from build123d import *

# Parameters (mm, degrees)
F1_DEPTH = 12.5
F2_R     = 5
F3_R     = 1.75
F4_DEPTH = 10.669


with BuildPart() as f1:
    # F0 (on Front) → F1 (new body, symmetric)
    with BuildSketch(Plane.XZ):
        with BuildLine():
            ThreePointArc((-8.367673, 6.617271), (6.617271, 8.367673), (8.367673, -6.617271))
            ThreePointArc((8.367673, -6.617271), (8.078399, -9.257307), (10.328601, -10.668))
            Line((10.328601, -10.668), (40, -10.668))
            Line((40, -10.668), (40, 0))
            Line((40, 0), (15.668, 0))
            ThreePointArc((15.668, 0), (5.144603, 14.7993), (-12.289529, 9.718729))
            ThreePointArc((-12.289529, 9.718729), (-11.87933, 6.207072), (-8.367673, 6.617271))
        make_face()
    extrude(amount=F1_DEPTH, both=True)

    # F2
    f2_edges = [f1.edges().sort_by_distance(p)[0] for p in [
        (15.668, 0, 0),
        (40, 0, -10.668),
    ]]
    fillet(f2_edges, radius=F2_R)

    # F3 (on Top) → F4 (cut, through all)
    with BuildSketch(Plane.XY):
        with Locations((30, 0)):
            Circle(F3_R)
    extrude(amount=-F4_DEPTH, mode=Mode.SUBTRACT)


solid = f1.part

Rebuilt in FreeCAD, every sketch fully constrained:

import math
import FreeCAD as App
import Part
import Sketcher

V = App.Vector


def edges_at(feature, points):
    """Names of the edges that pass closest to the given points."""
    edges = feature.Shape.Edges
    near = lambda p: min(range(len(edges)), key=lambda i: edges[i].distToShape(Part.Vertex(*p))[0])
    return sorted({f"Edge{near(p) + 1}" for p in points})

doc = App.newDocument("Part")
body = doc.addObject("PartDesign::Body", "Body")

# Sketch on XZ plane
sketch1 = body.newObject("Sketcher::SketchObject", "Sketch")
sketch1.AttachmentSupport = (doc.getObject("XZ_Plane"), [""])
sketch1.MapMode = "FlatFace"
sketch1.addGeometry(Part.ArcOfCircle(Part.Circle(V(0, 0, 0), V(0, 0, 1), 10.668), math.radians(-38.337433), math.radians(141.662567)), False)
sketch1.addGeometry(Part.ArcOfCircle(Part.Circle(V(10.328601, -8.168, 0), V(0, 0, 1), 2.5), math.radians(141.662569), math.radians(269.999993)), False)
sketch1.addGeometry(Part.LineSegment(V(10.328601, -10.668, 0), V(40, -10.668, 0)), False)
sketch1.addGeometry(Part.LineSegment(V(40, -10.668, 0), V(40, 0, 0)), False)
sketch1.addGeometry(Part.LineSegment(V(40, 0, 0), V(15.668, 0, 0)), False)
sketch1.addGeometry(Part.ArcOfCircle(Part.Circle(V(0, 0, 0), V(0, 0, 1), 15.668), math.radians(0), math.radians(141.662567)), False)
sketch1.addGeometry(Part.ArcOfCircle(Part.Circle(V(-10.328601, 8.168, 0), V(0, 0, 1), 2.5), math.radians(141.662565), math.radians(321.662565)), False)
sketch1.addConstraint(Sketcher.Constraint("Tangent", 0, 1, 1, 1))
sketch1.addConstraint(Sketcher.Constraint("Tangent", 1, 2, 2, 1))
sketch1.addConstraint(Sketcher.Constraint("Coincident", 2, 2, 3, 1))
sketch1.addConstraint(Sketcher.Constraint("Coincident", 3, 2, 4, 1))
sketch1.addConstraint(Sketcher.Constraint("Coincident", 4, 2, 5, 1))
sketch1.addConstraint(Sketcher.Constraint("Tangent", 5, 2, 6, 1))
sketch1.addConstraint(Sketcher.Constraint("Tangent", 6, 2, 0, 2))
sketch1.addConstraint(Sketcher.Constraint("Horizontal", 2))
sketch1.addConstraint(Sketcher.Constraint("Vertical", 3))
sketch1.addConstraint(Sketcher.Constraint("Horizontal", 4))
sketch1.addConstraint(Sketcher.Constraint("Coincident", 0, 3, -1, 1))
sketch1.addConstraint(Sketcher.Constraint("Coincident", 5, 3, -1, 1))
sketch1.addConstraint(Sketcher.Constraint("Equal", 1, 6))
sketch1.addConstraint(Sketcher.Constraint("PointOnObject", 3, 2, -1))
sketch1.addConstraint(Sketcher.Constraint("Radius", 1, 2.5))
sketch1.addConstraint(Sketcher.Constraint("DistanceX", -1, 1, 2, 2, 40.0))
sketch1.addConstraint(Sketcher.Constraint("Radius", 0, 10.668))
sketch1.addConstraint(Sketcher.Constraint("DistanceY", 3, 1, 3, 2, 10.668))
sketch1.addConstraint(Sketcher.Constraint("DistanceY", -1, 1, 6, 3, 8.168))
pad1 = body.newObject("PartDesign::Pad", "Pad")
pad1.Profile = sketch1
pad1.Length = 25
pad1.Midplane = True
doc.recompute()

fillet = body.newObject("PartDesign::Fillet", "Fillet")
fillet.Base = (pad1, edges_at(pad1, [(15.668, 0, 0), (40, 0, -10.668)]))
fillet.Radius = 5

# Sketch on XY plane
sketch2 = body.newObject("Sketcher::SketchObject", "Sketch001")
sketch2.AttachmentSupport = (doc.getObject("XY_Plane"), [""])
sketch2.MapMode = "FlatFace"
sketch2.addGeometry(Part.Circle(V(30, 0, 0), V(0, 0, 1), 1.75), False)
sketch2.addConstraint(Sketcher.Constraint("PointOnObject", 0, 3, -1))
sketch2.addConstraint(Sketcher.Constraint("Diameter", 0, 3.5))
sketch2.addConstraint(Sketcher.Constraint("DistanceX", -1, 1, 0, 3, 30.0))
pocket1 = body.newObject("PartDesign::Pocket", "Pocket")
pocket1.Profile = sketch2
pocket1.Type = "ThroughAll"

doc.recompute()
